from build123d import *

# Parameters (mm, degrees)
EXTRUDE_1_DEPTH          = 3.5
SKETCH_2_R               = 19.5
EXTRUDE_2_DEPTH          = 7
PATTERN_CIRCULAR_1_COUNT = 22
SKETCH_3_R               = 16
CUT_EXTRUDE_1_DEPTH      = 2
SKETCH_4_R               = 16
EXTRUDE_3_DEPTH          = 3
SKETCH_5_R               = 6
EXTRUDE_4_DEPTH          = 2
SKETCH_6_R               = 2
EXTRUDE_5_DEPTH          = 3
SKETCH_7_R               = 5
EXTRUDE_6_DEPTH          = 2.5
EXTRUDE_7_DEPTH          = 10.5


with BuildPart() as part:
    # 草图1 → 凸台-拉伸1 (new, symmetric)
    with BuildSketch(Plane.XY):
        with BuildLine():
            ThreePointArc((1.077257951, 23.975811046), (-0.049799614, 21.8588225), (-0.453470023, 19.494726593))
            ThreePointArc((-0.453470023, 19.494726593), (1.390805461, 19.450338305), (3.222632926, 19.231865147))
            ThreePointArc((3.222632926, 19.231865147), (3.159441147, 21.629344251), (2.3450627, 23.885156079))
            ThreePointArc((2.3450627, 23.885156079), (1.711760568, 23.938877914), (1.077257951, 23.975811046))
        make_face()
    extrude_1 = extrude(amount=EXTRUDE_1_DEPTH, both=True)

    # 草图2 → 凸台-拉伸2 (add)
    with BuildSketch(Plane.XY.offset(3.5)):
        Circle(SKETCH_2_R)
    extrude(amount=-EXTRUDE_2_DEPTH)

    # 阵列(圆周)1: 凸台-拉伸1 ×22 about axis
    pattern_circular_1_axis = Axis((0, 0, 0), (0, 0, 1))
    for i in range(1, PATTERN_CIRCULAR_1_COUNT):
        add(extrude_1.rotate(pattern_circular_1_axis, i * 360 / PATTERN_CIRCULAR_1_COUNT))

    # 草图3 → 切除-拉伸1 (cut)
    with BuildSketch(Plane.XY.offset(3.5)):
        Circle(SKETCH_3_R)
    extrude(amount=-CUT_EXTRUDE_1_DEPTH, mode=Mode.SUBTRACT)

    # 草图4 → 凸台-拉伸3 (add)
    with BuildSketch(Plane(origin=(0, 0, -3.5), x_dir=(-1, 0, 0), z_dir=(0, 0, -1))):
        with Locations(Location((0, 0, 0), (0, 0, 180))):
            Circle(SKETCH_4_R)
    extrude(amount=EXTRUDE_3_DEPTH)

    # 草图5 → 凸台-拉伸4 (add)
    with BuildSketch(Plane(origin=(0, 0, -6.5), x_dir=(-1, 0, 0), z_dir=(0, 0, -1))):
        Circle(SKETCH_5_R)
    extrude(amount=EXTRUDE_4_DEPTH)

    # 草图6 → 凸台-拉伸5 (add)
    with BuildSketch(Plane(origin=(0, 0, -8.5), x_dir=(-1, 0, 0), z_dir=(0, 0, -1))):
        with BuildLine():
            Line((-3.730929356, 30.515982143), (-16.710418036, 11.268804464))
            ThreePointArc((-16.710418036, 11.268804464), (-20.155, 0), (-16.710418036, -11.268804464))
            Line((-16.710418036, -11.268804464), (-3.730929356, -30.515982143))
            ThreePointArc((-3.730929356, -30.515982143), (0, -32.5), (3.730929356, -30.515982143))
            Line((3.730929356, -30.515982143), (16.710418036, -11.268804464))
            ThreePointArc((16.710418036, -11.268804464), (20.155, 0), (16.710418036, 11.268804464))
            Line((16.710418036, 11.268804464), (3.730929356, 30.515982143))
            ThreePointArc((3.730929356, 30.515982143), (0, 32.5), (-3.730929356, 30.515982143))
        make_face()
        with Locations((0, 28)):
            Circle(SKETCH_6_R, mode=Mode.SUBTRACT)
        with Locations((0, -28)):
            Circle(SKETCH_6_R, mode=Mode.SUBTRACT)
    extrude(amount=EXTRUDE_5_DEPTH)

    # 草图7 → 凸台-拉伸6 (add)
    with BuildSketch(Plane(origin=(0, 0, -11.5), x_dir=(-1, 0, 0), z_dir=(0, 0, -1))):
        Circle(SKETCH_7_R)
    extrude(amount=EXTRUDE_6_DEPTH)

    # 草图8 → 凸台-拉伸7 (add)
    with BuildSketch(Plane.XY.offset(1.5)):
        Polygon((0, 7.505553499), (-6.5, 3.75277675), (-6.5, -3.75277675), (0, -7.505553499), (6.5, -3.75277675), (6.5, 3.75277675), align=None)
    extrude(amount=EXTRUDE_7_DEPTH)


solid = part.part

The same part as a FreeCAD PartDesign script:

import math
import FreeCAD as App
import Part
import Sketcher
Q = App.Units.Quantity

doc = App.newDocument("Part")
body = doc.addObject("PartDesign::Body", "Body")

sketch1 = doc.addObject("Sketcher::SketchObject", "Sketch")
body.addObject(sketch1)
sketch1.AttachmentSupport = (doc.XY_Plane, [""])
sketch1.MapMode = "FlatFace"
sketch1.addGeometry([
    Part.ArcOfCircle(Part.Circle(App.Vector(7.1, 19.4, 0), App.Vector(0, 0, 1), 7.5), math.radians(143), math.radians(179)),
    Part.ArcOfCircle(Part.Circle(App.Vector(0, 0, 0), App.Vector(0, 0, 1), 19.5), math.radians(80.49), math.radians(91.33)),
    Part.ArcOfCircle(Part.Circle(App.Vector(-4.2, 20.2, 0), App.Vector(0, 0, 1), 7.5), math.radians(-8), math.radians(29)),
    Part.ArcOfCircle(Part.Circle(App.Vector(0, 0, 0), App.Vector(0, 0, 1), 24), math.radians(84.39), math.radians(87.43)),
], False)
sketch1.addConstraint([
    Sketcher.Constraint("Coincident", 0, 2, 1, 2),
    Sketcher.Constraint("Coincident", 1, 1, 2, 1),
    Sketcher.Constraint("Coincident", 2, 2, 3, 1),
    Sketcher.Constraint("Coincident", 3, 2, 0, 1),
    Sketcher.Constraint("Coincident", 1, 3, -1, 1),
    Sketcher.Constraint("Coincident", 3, 3, -1, 1),
    Sketcher.Constraint("Equal", 0, 2),
    Sketcher.Constraint("Radius", 3, 23.999998),
    Sketcher.Constraint("Radius", 1, 19.5),
    Sketcher.Constraint("Radius", 0, 7.524443),
    Sketcher.Constraint("DistanceX", 2, 2, 0, 3, 4.725601),
    Sketcher.Constraint("DistanceY", -1, 1, 0, 3, 19.426489),
    Sketcher.Constraint("DistanceX", 2, 3, -1, 1, 4.234659),
    Sketcher.Constraint("DistanceY", -1, 1, 2, 3, 20.234881),
])
pad1 = doc.addObject("PartDesign::Pad", "Pad")
body.addObject(pad1)
pad1.Profile = sketch1
pad1.Length = 7
pad1.Midplane = True

sketch2 = doc.addObject("Sketcher::SketchObject", "Sketch001")
body.addObject(sketch2)
sketch2.AttachmentSupport = (doc.XY_Plane, [""])
sketch2.MapMode = "FlatFace"
sketch2.AttachmentOffset = App.Placement(App.Vector(0, 0, 3.5), App.Rotation())
sketch2.addGeometry(Part.Circle(App.Vector(0, 0, 0), App.Vector(0, 0, 1), 20), False)
sketch2.addConstraint([
    Sketcher.Constraint("Coincident", 0, 3, -1, 1),
    Sketcher.Constraint("Diameter", 0, 39.0),
])
pad2 = doc.addObject("PartDesign::Pad", "Pad001")
body.addObject(pad2)
pad2.Profile = sketch2
pad2.Length = 7
pad2.Reversed = True
doc.recompute()

polarpattern = doc.addObject("PartDesign::PolarPattern", "PolarPattern")
body.addObject(polarpattern)
polarpattern.Originals = [pad1]
polarpattern.Axis = (doc.Z_Axis, [""])
polarpattern.Angle = 360
polarpattern.Occurrences = 22
body.Tip = polarpattern

sketch3 = doc.addObject("Sketcher::SketchObject", "Sketch002")
body.addObject(sketch3)
sketch3.AttachmentSupport = (doc.XY_Plane, [""])
sketch3.MapMode = "FlatFace"
sketch3.AttachmentOffset = App.Placement(App.Vector(0, 0, 3.5), App.Rotation())
sketch3.addGeometry(Part.Circle(App.Vector(0, 0, 0), App.Vector(0, 0, 1), 16), False)
sketch3.addConstraint([
    Sketcher.Constraint("Coincident", 0, 3, -1, 1),
    Sketcher.Constraint("Diameter", 0, 32.0),
])
pocket1 = doc.addObject("PartDesign::Pocket", "Pocket")
body.addObject(pocket1)
pocket1.Profile = sketch3
pocket1.Length = 2

sketch4 = doc.addObject("Sketcher::SketchObject", "Sketch003")
body.addObject(sketch4)
sketch4.AttachmentSupport = (doc.XY_Plane, [""])
sketch4.MapMode = "FlatFace"
sketch4.AttachmentOffset = App.Placement(App.Vector(0, 0, -3.5), App.Rotation())
sketch4.addGeometry(Part.Circle(App.Vector(0, 0, 0), App.Vector(0, 0, 1), 16), False)
sketch4.addConstraint([
    Sketcher.Constraint("Coincident", 0, 3, -1, 1),
    Sketcher.Constraint("Diameter", 0, 32.0),
])
pad3 = doc.addObject("PartDesign::Pad", "Pad002")
body.addObject(pad3)
pad3.Profile = sketch4
pad3.Length = 3
pad3.Reversed = True

sketch5 = doc.addObject("Sketcher::SketchObject", "Sketch004")
body.addObject(sketch5)
sketch5.AttachmentSupport = (doc.XY_Plane, [""])
sketch5.MapMode = "FlatFace"
sketch5.AttachmentOffset = App.Placement(App.Vector(0, 0, -6.5), App.Rotation())
sketch5.addGeometry(Part.Circle(App.Vector(0, 0, 0), App.Vector(0, 0, 1), 6), False)
sketch5.addConstraint([
    Sketcher.Constraint("Coincident", 0, 3, -1, 1),
    Sketcher.Constraint("Diameter", 0, 12.0),
])
pad4 = doc.addObject("PartDesign::Pad", "Pad003")
body.addObject(pad4)
pad4.Profile = sketch5
pad4.Length = 2
pad4.Reversed = True

sketch6 = doc.addObject("Sketcher::SketchObject", "Sketch005")
body.addObject(sketch6)
sketch6.AttachmentSupport = (doc.XY_Plane, [""])
sketch6.MapMode = "FlatFace"
sketch6.AttachmentOffset = App.Placement(App.Vector(0, 0, -8.5), App.Rotation())
sketch6.addGeometry([
    Part.LineSegment(App.Vector(3.7, 30.5, 0), App.Vector(16.7, 11.3, 0)),
    Part.ArcOfCircle(Part.Circle(App.Vector(0, 0, 0), App.Vector(0, 0, 1), 20.2), math.radians(-34), math.radians(34)),
    Part.LineSegment(App.Vector(16.7, -11.3, 0), App.Vector(3.7, -30.5, 0)),
    Part.ArcOfCircle(Part.Circle(App.Vector(0, -28, 0), App.Vector(0, 0, 1), 4.5), math.radians(-146), math.radians(-34)),
    Part.LineSegment(App.Vector(-3.7, -30.5, 0), App.Vector(-16.7, -11.3, 0)),
    Part.ArcOfCircle(Part.Circle(App.Vector(0, 0, 0), App.Vector(0, 0, 1), 20.2), math.radians(146), math.radians(214)),
    Part.LineSegment(App.Vector(-16.7, 11.3, 0), App.Vector(-3.7, 30.5, 0)),
    Part.ArcOfCircle(Part.Circle(App.Vector(0, 28, 0), App.Vector(0, 0, 1), 4.5), math.radians(34), math.radians(146)),
    Part.Circle(App.Vector(0, -28, 0), App.Vector(0, 0, 1), 2),
    Part.Circle(App.Vector(0, 28, 0), App.Vector(0, 0, 1), 2),
], False)
sketch6.addConstraint([
    Sketcher.Constraint("Tangent", 0, 2, 1, 2),
    Sketcher.Constraint("Tangent", 1, 1, 2, 1),
    Sketcher.Constraint("Tangent", 2, 2, 3, 2),
    Sketcher.Constraint("Tangent", 3, 1, 4, 1),
    Sketcher.Constraint("Tangent", 4, 2, 5, 2),
    Sketcher.Constraint("Tangent", 5, 1, 6, 1),
    Sketcher.Constraint("Tangent", 6, 2, 7, 2),
    Sketcher.Constraint("Tangent", 7, 1, 0, 1),
    Sketcher.Constraint("Coincident", 1, 3, -1, 1),
    Sketcher.Constraint("Coincident", 5, 3, -1, 1),
    Sketcher.Constraint("Coincident", 8, 3, 3, 3),
    Sketcher.Constraint("Coincident", 9, 3, 7, 3),
    Sketcher.Constraint("Equal", 1, 5),
    Sketcher.Constraint("Equal", 3, 7),
    Sketcher.Constraint("Equal", 8, 9),
    Sketcher.Constraint("Symmetric", 3, 3, 7, 3, -1, 1),
    Sketcher.Constraint("PointOnObject", 3, 3, -2),
    Sketcher.Constraint("Diameter", 8, 4.0),
    Sketcher.Constraint("Radius", 3, 4.5),
    Sketcher.Constraint("DistanceY", 3, 3, -1, 1, 28.0),
    Sketcher.Constraint("Radius", 1, 20.155),
])
pad5 = doc.addObject("PartDesign::Pad", "Pad004")
body.addObject(pad5)
pad5.Profile = sketch6
pad5.Length = 3
pad5.Reversed = True

sketch7 = doc.addObject("Sketcher::SketchObject", "Sketch006")
body.addObject(sketch7)
sketch7.AttachmentSupport = (doc.XY_Plane, [""])
sketch7.MapMode = "FlatFace"
sketch7.AttachmentOffset = App.Placement(App.Vector(0, 0, -11.5), App.Rotation())
sketch7.addGeometry(Part.Circle(App.Vector(0, 0, 0), App.Vector(0, 0, 1), 5), False)
sketch7.addConstraint([
    Sketcher.Constraint("Coincident", 0, 3, -1, 1),
    Sketcher.Constraint("Diameter", 0, 10.0),
])
pad6 = doc.addObject("PartDesign::Pad", "Pad005")
body.addObject(pad6)
pad6.Profile = sketch7
pad6.Length = 2.5
pad6.Reversed = True

sketch8 = doc.addObject("Sketcher::SketchObject", "Sketch007")
body.addObject(sketch8)
sketch8.AttachmentSupport = (doc.XY_Plane, [""])
sketch8.MapMode = "FlatFace"
sketch8.AttachmentOffset = App.Placement(App.Vector(0, 0, 1.5), App.Rotation())
sketch8.addGeometry([
    Part.LineSegment(App.Vector(0, 8, 0), App.Vector(-6, 4, 0)),
    Part.LineSegment(App.Vector(-6, 4, 0), App.Vector(-6, -4, 0)),
    Part.LineSegment(App.Vector(-6, -4, 0), App.Vector(0, -8, 0)),
    Part.LineSegment(App.Vector(0, -8, 0), App.Vector(6, -4, 0)),
    Part.LineSegment(App.Vector(6, -4, 0), App.Vector(6, 4, 0)),
    Part.LineSegment(App.Vector(6, 4, 0), App.Vector(0, 8, 0)),
], False)
sketch8.addConstraint([
    Sketcher.Constraint("Coincident", 0, 2, 1, 1),
    Sketcher.Constraint("Coincident", 1, 2, 2, 1),
    Sketcher.Constraint("Coincident", 2, 2, 3, 1),
    Sketcher.Constraint("Coincident", 3, 2, 4, 1),
    Sketcher.Constraint("Coincident", 4, 2, 5, 1),
    Sketcher.Constraint("Coincident", 5, 2, 0, 1),
    Sketcher.Constraint("Vertical", 1),
    Sketcher.Constraint("Vertical", 4),
    Sketcher.Constraint("Symmetric", 0, 2, 3, 2, -1, 1),
    Sketcher.Constraint("Symmetric", 2, 2, 5, 2, -1, 1),
    Sketcher.Constraint("PointOnObject", 2, 2, -2),
    Sketcher.Constraint("Parallel", 2, 5),
    Sketcher.Constraint("Horizontal", 1, 2, 3, 2),
    Sketcher.Constraint("Angle", 0, Q("-150 deg")),
    Sketcher.Constraint("DistanceX", 1, 2, 3, 2, 13.0),
    Sketcher.Constraint("DistanceY", 1, 2, 1, 1, 7.505554),
])
pad7 = doc.addObject("PartDesign::Pad", "Pad006")
body.addObject(pad7)
pad7.Profile = sketch8
pad7.Length = 10.5

doc.recompute()
